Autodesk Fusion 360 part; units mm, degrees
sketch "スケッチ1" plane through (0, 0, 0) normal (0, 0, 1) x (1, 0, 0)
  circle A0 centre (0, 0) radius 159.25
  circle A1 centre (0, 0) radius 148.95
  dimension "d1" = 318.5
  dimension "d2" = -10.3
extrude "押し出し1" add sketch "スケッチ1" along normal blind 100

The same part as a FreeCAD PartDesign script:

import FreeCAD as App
import Part
import Sketcher

doc = App.newDocument("Part")
params = doc.addObject("Spreadsheet::Sheet", "Params")
for row, (alias, value) in enumerate([
    ("sketch1_diameter", "318.5 mm"),
    ("sketch1_diameter2", "297.9 mm"),
    ("pad1_length", "100 mm"),
], start=1):
    params.set(f"A{row}", alias)
    params.set(f"B{row}", "=" + value)
    params.setAlias(f"B{row}", alias)

body = doc.addObject("PartDesign::Body", "Body")

# Sketch on XY plane
sketch1 = doc.addObject("Sketcher::SketchObject", "Sketch")
body.addObject(sketch1)
sketch1.AttachmentSupport = (doc.XY_Plane, [""])
sketch1.MapMode = "FlatFace"
sketch1.addGeometry([
    Part.Circle(App.Vector(0, 0, 0), App.Vector(0, 0, 1), 159),
    Part.Circle(App.Vector(0, 0, 0), App.Vector(0, 0, 1), 149),
], False)
sketch1.addConstraint([
    Sketcher.Constraint("Coincident", 0, 3, -1, 1),
    Sketcher.Constraint("Coincident", 1, 3, -1, 1),
    Sketcher.Constraint("Diameter", 0, 318.5),
    Sketcher.Constraint("Diameter", 1, 297.9),
])
sketch1.setExpression("Constraints[2]", "Params.sketch1_diameter")
sketch1.setExpression("Constraints[3]", "Params.sketch1_diameter2")
pad1 = doc.addObject("PartDesign::Pad", "Pad")
body.addObject(pad1)
pad1.Profile = sketch1
pad1.setExpression("Length", "Params.pad1_length")

doc.recompute()
